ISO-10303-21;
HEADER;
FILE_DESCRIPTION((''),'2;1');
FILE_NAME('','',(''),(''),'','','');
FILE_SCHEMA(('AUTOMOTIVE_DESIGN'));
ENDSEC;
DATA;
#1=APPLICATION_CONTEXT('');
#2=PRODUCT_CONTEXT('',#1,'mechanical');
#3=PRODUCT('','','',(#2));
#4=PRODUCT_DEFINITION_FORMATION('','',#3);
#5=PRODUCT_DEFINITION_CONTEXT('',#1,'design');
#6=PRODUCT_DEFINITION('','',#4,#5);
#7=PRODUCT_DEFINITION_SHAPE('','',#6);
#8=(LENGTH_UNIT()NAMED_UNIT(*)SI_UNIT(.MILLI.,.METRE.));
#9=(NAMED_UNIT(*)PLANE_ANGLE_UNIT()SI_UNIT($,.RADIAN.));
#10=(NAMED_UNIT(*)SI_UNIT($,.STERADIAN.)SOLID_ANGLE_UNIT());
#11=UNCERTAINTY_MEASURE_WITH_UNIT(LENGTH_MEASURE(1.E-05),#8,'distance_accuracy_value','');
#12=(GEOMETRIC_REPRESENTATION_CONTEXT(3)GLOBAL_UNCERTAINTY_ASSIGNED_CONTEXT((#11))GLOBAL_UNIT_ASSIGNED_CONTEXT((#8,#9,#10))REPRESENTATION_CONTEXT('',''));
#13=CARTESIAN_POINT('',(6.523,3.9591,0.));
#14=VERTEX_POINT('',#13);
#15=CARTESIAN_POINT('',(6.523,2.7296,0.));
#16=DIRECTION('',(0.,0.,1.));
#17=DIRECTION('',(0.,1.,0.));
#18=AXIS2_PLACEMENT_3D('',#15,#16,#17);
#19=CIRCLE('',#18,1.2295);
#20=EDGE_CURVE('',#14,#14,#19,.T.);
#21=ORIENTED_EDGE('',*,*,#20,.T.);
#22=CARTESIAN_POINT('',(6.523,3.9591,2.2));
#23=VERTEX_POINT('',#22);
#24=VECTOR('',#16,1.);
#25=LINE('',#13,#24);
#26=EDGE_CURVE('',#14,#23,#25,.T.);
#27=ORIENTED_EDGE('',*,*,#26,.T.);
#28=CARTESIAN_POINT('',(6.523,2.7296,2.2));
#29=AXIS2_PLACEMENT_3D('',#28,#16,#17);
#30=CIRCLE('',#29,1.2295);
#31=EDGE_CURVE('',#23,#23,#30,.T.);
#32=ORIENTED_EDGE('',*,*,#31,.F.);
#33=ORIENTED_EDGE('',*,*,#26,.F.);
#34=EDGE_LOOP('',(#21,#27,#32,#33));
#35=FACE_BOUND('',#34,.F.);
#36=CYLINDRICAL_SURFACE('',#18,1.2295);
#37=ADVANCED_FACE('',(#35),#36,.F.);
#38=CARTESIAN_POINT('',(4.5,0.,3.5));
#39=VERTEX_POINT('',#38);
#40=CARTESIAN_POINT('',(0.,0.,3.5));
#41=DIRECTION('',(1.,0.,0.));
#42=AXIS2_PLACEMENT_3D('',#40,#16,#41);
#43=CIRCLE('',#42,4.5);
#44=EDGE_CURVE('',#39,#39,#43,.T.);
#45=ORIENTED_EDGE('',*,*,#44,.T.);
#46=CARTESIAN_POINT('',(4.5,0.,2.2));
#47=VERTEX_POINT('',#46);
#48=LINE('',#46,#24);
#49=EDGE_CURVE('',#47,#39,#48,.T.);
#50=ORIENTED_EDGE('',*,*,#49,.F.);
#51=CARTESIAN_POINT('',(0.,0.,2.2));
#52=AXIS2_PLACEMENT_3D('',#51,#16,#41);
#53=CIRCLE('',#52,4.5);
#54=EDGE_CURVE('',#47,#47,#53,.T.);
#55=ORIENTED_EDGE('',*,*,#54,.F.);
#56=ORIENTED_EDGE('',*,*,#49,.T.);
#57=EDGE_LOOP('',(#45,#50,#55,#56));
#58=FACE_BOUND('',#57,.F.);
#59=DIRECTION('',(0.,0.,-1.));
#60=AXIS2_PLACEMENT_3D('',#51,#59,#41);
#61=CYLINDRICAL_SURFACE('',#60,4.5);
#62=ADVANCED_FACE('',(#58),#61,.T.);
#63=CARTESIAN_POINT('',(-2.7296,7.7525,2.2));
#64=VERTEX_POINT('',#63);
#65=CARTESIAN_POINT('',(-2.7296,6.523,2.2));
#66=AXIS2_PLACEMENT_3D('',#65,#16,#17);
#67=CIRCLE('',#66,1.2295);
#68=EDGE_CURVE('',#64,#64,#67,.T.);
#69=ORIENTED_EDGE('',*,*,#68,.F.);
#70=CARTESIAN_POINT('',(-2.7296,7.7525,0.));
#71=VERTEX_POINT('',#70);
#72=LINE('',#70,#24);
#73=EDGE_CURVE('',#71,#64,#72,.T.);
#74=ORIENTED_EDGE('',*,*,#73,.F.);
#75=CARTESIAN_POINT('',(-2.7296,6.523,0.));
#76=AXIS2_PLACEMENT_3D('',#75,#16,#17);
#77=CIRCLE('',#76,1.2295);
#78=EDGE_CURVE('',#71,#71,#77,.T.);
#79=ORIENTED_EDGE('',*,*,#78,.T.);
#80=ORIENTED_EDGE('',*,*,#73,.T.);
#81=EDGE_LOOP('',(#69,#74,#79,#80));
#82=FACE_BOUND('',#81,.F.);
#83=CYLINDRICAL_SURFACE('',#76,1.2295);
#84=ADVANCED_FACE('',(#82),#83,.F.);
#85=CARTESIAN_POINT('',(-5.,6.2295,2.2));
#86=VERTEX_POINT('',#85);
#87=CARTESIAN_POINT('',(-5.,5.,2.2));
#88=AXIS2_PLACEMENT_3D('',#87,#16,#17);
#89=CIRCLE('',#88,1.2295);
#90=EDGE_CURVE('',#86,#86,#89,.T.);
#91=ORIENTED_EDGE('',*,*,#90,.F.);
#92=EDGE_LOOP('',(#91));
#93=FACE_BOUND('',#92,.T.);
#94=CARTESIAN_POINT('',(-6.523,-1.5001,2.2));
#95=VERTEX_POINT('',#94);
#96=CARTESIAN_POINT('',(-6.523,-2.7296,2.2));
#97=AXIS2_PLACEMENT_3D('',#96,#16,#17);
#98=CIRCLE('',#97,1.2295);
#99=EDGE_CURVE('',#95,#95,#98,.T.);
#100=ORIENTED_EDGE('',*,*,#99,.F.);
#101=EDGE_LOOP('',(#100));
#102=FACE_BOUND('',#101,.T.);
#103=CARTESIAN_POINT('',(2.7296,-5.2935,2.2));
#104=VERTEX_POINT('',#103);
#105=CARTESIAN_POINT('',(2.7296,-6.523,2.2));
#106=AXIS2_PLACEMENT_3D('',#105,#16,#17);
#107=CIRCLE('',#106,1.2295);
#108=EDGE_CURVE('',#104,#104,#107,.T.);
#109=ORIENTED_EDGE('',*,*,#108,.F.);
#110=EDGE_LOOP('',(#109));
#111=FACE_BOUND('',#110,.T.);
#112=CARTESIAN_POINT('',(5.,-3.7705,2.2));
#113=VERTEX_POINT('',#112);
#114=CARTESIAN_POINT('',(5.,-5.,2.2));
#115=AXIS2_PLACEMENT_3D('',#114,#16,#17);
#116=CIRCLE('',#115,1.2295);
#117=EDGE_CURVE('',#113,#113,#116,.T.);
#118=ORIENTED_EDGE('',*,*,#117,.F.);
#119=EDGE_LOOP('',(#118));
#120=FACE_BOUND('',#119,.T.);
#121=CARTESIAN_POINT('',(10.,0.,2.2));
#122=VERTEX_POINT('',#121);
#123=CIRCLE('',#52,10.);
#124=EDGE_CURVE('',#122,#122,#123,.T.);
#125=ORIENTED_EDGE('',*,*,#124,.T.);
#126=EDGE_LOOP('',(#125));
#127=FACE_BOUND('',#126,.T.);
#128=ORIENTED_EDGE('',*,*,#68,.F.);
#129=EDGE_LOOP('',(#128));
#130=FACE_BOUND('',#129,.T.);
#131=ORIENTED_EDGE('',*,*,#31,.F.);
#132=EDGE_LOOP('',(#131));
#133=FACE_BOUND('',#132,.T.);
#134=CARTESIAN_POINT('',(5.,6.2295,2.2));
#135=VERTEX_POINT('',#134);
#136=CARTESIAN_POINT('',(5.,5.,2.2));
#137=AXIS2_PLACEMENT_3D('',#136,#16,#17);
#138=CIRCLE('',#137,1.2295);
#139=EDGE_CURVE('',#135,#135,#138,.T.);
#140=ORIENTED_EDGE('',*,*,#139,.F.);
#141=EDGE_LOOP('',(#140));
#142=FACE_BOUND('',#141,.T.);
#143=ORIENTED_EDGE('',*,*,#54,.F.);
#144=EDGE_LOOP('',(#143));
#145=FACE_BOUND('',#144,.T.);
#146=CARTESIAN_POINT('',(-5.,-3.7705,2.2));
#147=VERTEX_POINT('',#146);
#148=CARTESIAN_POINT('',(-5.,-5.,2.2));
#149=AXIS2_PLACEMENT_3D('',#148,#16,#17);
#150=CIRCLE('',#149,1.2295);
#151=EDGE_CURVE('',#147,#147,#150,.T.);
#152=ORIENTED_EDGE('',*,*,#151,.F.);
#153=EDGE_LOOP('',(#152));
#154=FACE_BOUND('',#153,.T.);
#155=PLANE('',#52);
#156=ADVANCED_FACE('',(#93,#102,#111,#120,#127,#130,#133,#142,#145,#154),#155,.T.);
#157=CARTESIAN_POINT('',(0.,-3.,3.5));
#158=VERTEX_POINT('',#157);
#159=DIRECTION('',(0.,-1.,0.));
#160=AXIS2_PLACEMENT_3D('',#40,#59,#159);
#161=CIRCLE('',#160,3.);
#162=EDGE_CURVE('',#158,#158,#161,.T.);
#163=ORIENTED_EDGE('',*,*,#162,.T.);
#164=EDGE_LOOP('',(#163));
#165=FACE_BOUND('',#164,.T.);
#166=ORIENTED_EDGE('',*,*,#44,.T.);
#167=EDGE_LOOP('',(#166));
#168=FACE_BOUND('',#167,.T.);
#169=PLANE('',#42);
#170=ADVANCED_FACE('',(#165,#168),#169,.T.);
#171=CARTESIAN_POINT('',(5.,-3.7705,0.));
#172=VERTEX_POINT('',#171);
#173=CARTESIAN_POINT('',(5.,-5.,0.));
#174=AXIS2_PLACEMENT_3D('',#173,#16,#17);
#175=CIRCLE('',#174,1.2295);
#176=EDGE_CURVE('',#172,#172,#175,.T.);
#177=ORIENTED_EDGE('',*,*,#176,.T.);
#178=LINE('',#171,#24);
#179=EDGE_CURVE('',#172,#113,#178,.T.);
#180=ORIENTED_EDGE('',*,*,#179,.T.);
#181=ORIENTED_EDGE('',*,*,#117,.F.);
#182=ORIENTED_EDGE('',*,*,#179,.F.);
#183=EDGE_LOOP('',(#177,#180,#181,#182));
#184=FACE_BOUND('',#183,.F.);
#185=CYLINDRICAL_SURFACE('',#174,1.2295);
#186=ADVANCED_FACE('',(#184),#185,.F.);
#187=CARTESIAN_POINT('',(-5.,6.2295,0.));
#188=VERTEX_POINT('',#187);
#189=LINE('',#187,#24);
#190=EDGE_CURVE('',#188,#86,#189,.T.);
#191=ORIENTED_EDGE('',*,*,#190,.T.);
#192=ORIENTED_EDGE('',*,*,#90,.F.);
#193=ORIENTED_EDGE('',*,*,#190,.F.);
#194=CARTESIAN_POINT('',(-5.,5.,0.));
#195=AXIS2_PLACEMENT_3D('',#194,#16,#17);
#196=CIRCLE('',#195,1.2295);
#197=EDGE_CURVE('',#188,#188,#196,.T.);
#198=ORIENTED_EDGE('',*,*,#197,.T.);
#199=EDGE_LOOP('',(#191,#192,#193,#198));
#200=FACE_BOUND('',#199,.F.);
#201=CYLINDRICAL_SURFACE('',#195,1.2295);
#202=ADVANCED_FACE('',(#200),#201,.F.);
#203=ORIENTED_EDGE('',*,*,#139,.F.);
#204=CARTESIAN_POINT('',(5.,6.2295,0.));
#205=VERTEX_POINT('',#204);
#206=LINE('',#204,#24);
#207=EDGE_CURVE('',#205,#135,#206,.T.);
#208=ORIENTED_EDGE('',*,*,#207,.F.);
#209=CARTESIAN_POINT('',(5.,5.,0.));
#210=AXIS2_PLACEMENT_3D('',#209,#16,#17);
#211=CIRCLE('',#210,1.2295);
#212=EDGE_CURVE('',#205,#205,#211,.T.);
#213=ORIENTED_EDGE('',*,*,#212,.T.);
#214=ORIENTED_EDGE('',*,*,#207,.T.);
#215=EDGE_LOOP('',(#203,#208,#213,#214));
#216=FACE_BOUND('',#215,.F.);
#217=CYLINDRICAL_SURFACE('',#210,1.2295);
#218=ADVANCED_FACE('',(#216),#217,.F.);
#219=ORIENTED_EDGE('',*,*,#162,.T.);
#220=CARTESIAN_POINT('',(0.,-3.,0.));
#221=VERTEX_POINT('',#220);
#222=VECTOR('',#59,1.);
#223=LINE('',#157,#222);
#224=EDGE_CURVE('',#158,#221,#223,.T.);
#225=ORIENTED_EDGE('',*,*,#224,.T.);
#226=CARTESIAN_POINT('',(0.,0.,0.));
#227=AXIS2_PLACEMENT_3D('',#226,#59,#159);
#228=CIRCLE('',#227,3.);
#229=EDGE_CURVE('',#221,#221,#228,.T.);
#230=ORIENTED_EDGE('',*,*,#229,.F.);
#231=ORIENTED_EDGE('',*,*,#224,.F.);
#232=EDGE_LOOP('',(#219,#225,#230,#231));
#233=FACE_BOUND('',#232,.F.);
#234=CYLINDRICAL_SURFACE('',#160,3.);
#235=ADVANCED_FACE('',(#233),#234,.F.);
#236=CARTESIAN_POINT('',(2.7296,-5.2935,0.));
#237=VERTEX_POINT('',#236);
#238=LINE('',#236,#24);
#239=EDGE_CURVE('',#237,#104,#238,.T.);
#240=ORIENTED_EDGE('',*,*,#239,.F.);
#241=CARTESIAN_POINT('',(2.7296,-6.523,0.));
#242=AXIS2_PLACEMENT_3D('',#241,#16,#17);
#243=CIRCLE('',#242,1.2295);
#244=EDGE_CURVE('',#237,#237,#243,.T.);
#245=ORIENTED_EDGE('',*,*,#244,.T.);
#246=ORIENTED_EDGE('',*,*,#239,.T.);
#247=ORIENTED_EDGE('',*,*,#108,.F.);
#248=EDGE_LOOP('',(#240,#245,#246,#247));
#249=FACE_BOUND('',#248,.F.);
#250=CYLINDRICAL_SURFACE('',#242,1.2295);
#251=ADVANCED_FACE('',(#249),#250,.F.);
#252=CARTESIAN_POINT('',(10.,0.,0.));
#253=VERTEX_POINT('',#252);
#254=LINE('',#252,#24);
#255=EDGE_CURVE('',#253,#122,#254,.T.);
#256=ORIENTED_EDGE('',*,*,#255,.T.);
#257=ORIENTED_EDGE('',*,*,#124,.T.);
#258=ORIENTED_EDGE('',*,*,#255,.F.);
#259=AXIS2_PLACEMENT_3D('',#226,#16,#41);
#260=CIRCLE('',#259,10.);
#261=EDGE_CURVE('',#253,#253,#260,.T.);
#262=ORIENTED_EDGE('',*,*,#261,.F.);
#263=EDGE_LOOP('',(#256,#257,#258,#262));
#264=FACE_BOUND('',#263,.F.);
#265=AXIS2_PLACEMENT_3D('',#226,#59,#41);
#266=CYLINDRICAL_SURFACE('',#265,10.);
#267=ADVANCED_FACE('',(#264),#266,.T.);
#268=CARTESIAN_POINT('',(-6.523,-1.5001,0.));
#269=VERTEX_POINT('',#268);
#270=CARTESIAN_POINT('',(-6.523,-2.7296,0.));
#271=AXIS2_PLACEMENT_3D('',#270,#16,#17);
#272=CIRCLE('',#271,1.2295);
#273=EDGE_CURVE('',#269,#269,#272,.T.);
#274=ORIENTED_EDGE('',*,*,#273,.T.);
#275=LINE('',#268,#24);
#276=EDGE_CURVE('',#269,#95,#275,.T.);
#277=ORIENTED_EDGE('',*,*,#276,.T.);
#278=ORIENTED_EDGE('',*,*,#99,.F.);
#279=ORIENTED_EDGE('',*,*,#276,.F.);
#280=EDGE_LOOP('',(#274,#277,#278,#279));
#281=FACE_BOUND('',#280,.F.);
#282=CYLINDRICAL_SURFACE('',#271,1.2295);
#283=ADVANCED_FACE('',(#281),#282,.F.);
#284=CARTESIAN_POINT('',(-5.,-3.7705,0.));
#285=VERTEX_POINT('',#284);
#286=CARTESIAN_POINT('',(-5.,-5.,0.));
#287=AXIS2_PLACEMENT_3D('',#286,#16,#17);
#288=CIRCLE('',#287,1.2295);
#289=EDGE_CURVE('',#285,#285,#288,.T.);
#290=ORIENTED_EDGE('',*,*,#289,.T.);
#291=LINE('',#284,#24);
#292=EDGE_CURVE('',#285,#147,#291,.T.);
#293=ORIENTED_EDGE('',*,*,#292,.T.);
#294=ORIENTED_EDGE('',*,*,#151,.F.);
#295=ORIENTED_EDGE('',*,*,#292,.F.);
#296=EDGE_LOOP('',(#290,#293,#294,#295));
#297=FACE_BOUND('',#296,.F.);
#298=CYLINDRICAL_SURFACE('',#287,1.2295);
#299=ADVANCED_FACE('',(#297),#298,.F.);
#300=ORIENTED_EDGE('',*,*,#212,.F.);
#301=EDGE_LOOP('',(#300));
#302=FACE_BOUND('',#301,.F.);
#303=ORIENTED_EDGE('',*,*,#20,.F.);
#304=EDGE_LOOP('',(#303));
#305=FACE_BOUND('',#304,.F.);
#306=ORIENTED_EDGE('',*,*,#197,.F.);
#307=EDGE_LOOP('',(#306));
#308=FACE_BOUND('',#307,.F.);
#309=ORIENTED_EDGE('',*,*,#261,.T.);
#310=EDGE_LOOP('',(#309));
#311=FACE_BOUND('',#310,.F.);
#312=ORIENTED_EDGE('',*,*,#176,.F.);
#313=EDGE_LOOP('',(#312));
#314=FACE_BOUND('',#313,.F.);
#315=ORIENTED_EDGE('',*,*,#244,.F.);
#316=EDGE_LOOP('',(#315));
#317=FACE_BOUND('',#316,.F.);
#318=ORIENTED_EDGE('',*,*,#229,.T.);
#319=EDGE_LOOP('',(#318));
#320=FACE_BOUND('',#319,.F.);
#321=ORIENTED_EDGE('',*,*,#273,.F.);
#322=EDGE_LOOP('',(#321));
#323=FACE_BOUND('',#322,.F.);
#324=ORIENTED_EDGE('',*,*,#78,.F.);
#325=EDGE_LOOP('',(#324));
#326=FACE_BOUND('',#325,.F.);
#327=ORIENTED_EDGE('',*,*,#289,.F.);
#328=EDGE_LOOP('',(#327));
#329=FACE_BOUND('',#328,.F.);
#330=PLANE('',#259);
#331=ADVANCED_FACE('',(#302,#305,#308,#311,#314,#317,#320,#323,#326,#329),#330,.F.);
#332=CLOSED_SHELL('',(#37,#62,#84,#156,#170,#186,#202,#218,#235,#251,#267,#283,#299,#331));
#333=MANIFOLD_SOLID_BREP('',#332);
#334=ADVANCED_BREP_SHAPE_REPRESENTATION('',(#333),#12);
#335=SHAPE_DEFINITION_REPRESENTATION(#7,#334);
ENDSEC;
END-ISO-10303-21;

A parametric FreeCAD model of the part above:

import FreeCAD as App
import Part
import Sketcher
from FreeCAD import Vector

doc = App.newDocument("Part")
params = doc.addObject("Spreadsheet::Sheet", "Params")
for row, (alias, value) in enumerate([
    ("sketch1_diameter", "20 mm"),
    ("pad1_length", "2.2 mm"),
    ("sketch2_diameter", "9 mm"),
    ("pad2_length", "1.3 mm"),
    ("hole_diameter", "2.459 mm"),
    ("sketch4_diameter", "6 mm"),
    ("hole2_diameter", "6 mm"),
    ("hole3_diameter", "2.459 mm"),
    ("hole3_depth", "7 mm"),
], start=1):
    params.set(f"A{row}", alias)
    params.set(f"B{row}", "=" + value)
    params.setAlias(f"B{row}", alias)

body = doc.addObject("PartDesign::Body", "Body")

# Sketch on XY plane
sketch1 = body.newObject("Sketcher::SketchObject", "Sketch")
sketch1.AttachmentSupport = (doc.getObject("XY_Plane"), [""])
sketch1.MapMode = "FlatFace"
sketch1.addGeometry(Part.Circle(Vector(0, 0, 0), Vector(0, 0, 1), 10), False)
sketch1.addConstraint([
    Sketcher.Constraint("Coincident", 0, 3, -1, 1),
    Sketcher.Constraint("Diameter", 0, 20.0),
])
sketch1.setExpression("Constraints[1]", "Params.sketch1_diameter")
pad1 = body.newObject("PartDesign::Pad", "Pad")
pad1.Profile = sketch1
pad1.setExpression("Length", "Params.pad1_length")

# Sketch on XY plane
sketch2 = body.newObject("Sketcher::SketchObject", "Sketch001")
sketch2.AttachmentSupport = (doc.getObject("XY_Plane"), [""])
sketch2.MapMode = "FlatFace"
sketch2.AttachmentOffset = App.Placement(Vector(0, 0, 2.2), App.Rotation())
sketch2.addGeometry(Part.Circle(Vector(0, 0, 0), Vector(0, 0, 1), 4.5), False)
sketch2.addConstraint([
    Sketcher.Constraint("Coincident", 0, 3, -1, 1),
    Sketcher.Constraint("Diameter", 0, 9.0),
])
sketch2.setExpression("Constraints[1]", "Params.sketch2_diameter")
pad2 = body.newObject("PartDesign::Pad", "Pad001")
pad2.Profile = sketch2
pad2.setExpression("Length", "Params.pad2_length")

# Sketch on XY plane
sketch3 = body.newObject("Sketcher::SketchObject", "Sketch002")
sketch3.AttachmentSupport = (doc.getObject("XY_Plane"), [""])
sketch3.MapMode = "FlatFace"
sketch3.addGeometry([
    Part.Circle(Vector(5, 5, 0), Vector(0, 0, 1), 1.2295),
    Part.Circle(Vector(-5, 5, 0), Vector(0, 0, 1), 1.2295),
    Part.Circle(Vector(-5, -5, 0), Vector(0, 0, 1), 1.2295),
    Part.Circle(Vector(5, -5, 0), Vector(0, 0, 1), 1.2295),
], False)
sketch3.addConstraint([
    Sketcher.Constraint("Equal", 0, 1),
    Sketcher.Constraint("Equal", 1, 2),
    Sketcher.Constraint("Equal", 2, 3),
    Sketcher.Constraint("Symmetric", 0, 3, 2, 3, -1, 1),
    Sketcher.Constraint("Symmetric", 1, 3, 3, 3, -1, 1),
    Sketcher.Constraint("Symmetric", 0, 3, 1, 3, -2),
    Sketcher.Constraint("Diameter", 0, 2.459),
    Sketcher.Constraint("DistanceX", -1, 1, 0, 3, 5.0),
    Sketcher.Constraint("DistanceY", -1, 1, 0, 3, 5.0),
])
doc.recompute()
hole = body.newObject("PartDesign::Hole", "Hole")
hole.Profile = sketch3
hole.ThreadType = "None"
hole.setExpression("Diameter", "Params.hole_diameter")
hole.DepthType = "ThroughAll"
hole.Reversed = True

# Sketch on XY plane
sketch4 = body.newObject("Sketcher::SketchObject", "Sketch003")
sketch4.AttachmentSupport = (doc.getObject("XY_Plane"), [""])
sketch4.MapMode = "FlatFace"
sketch4.AttachmentOffset = App.Placement(Vector(0, 0, 3.5), App.Rotation())
sketch4.addGeometry(Part.Circle(Vector(0, 0, 0), Vector(0, 0, 1), 3), False)
sketch4.addConstraint([
    Sketcher.Constraint("Coincident", 0, 3, -1, 1),
    Sketcher.Constraint("Diameter", 0, 6.0),
])
sketch4.setExpression("Constraints[1]", "Params.sketch4_diameter")
doc.recompute()
hole2 = body.newObject("PartDesign::Hole", "Hole001")
hole2.Profile = sketch4
hole2.ThreadType = "None"
hole2.setExpression("Diameter", "Params.hole2_diameter")
hole2.DepthType = "ThroughAll"

# Sketch on XY plane
sketch5 = body.newObject("Sketcher::SketchObject", "Sketch004")
sketch5.AttachmentSupport = (doc.getObject("XY_Plane"), [""])
sketch5.MapMode = "FlatFace"
sketch5.addGeometry([
    Part.Circle(Vector(2.7296, -6.523, 0), Vector(0, 0, 1), 1.2295),
    Part.Circle(Vector(-2.7296, 6.523, 0), Vector(0, 0, 1), 1.2295),
    Part.Circle(Vector(6.523, 2.7296, 0), Vector(0, 0, 1), 1.2295),
    Part.Circle(Vector(-6.523, -2.7296, 0), Vector(0, 0, 1), 1.2295),
], False)
sketch5.addConstraint([
    Sketcher.Constraint("Equal", 0, 1),
    Sketcher.Constraint("Equal", 1, 2),
    Sketcher.Constraint("Equal", 2, 3),
    Sketcher.Constraint("Symmetric", 0, 3, 1, 3, -1, 1),
    Sketcher.Constraint("Symmetric", 2, 3, 3, 3, -1, 1),
    Sketcher.Constraint("Diameter", 0, 2.459),
    Sketcher.Constraint("DistanceY", 0, 3, -1, 1, 6.523),
    Sketcher.Constraint("DistanceX", -1, 1, 2, 3, 6.523),
    Sketcher.Constraint("DistanceX", -1, 1, 0, 3, 2.7296),
    Sketcher.Constraint("DistanceY", -1, 1, 2, 3, 2.7296),
])
doc.recompute()
hole3 = body.newObject("PartDesign::Hole", "Hole002")
hole3.Profile = sketch5
hole3.ThreadType = "None"
hole3.setExpression("Diameter", "Params.hole3_diameter")
hole3.DepthType = "Dimension"
hole3.setExpression("Depth", "Params.hole3_depth")
hole3.DrillPoint = "Angled"
hole3.DrillPointAngle = 120
hole3.Reversed = True

doc.recompute()
